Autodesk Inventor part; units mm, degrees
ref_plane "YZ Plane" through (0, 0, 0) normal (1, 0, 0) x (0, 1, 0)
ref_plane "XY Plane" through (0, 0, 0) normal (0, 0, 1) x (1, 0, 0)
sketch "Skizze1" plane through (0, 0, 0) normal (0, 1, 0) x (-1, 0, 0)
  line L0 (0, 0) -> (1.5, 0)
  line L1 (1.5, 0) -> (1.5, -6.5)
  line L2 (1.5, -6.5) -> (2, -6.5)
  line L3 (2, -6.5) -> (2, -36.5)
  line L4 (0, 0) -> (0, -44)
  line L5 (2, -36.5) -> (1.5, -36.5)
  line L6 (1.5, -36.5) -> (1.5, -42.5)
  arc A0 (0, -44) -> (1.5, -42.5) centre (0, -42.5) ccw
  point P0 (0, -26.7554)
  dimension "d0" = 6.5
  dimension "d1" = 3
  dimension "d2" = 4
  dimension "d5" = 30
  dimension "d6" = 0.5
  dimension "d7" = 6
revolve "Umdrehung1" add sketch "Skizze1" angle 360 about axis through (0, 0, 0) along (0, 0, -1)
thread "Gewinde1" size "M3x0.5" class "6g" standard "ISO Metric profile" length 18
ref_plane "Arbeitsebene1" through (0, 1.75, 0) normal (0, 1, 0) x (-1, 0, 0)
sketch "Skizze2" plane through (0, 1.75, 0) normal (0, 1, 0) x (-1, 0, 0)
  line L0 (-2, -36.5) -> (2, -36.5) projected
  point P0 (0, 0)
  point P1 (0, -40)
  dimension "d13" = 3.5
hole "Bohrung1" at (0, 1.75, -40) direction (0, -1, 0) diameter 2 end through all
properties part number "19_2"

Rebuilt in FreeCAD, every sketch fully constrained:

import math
import FreeCAD as App
import Part
import Sketcher

doc = App.newDocument("Part")
body = doc.addObject("PartDesign::Body", "Body")

# Sketch on XZ plane
sketch1 = doc.addObject("Sketcher::SketchObject", "Sketch")
body.addObject(sketch1)
sketch1.AttachmentSupport = (doc.XZ_Plane, [""])
sketch1.MapMode = "FlatFace"
sketch1.addGeometry([
    Part.LineSegment(App.Vector(-1.5, 0, 0), App.Vector(0, 0, 0)),  # 0
    Part.LineSegment(App.Vector(0, 0, 0), App.Vector(0, -44, 0)),  # 1
    Part.ArcOfCircle(Part.Circle(App.Vector(0, -42.5, 0), App.Vector(0, 0, 1), 1.5), math.radians(180), math.radians(270)),  # 2
    Part.LineSegment(App.Vector(-1.5, -42.5, 0), App.Vector(-1.5, -36.5, 0)),  # 3
    Part.LineSegment(App.Vector(-1.5, -36.5, 0), App.Vector(-2, -36.5, 0)),  # 4
    Part.LineSegment(App.Vector(-2, -36.5, 0), App.Vector(-2, -6.5, 0)),  # 5
    Part.LineSegment(App.Vector(-2, -6.5, 0), App.Vector(-1.5, -6.5, 0)),  # 6
    Part.LineSegment(App.Vector(-1.5, -6.5, 0), App.Vector(-1.5, 0, 0)),  # 7
], False)
sketch1.addConstraint([
    Sketcher.Constraint("Coincident", 0, 2, 1, 1),
    Sketcher.Constraint("Coincident", 1, 2, 2, 2),
    Sketcher.Constraint("Tangent", 2, 1, 3, 1),
    Sketcher.Constraint("Coincident", 3, 2, 4, 1),
    Sketcher.Constraint("Coincident", 4, 2, 5, 1),
    Sketcher.Constraint("Coincident", 5, 2, 6, 1),
    Sketcher.Constraint("Coincident", 6, 2, 7, 1),
    Sketcher.Constraint("Coincident", 7, 2, 0, 1),
    Sketcher.Constraint("Horizontal", 0),
    Sketcher.Constraint("Vertical", 1),
    Sketcher.Constraint("Vertical", 3),
    Sketcher.Constraint("Horizontal", 4),
    Sketcher.Constraint("Vertical", 5),
    Sketcher.Constraint("Horizontal", 6),
    Sketcher.Constraint("Vertical", 7),
    Sketcher.Constraint("Coincident", 0, 2, -1, 1),
    Sketcher.Constraint("PointOnObject", 2, 3, -2),
    Sketcher.Constraint("Vertical", 3, 2, 6, 2),
    Sketcher.Constraint("Radius", 2, 1.5),
    Sketcher.Constraint("DistanceY", 3, 1, 3, 2, 6.0),
    Sketcher.Constraint("DistanceY", 5, 1, 5, 2, 30.0),
    Sketcher.Constraint("DistanceX", 4, 2, 4, 1, 0.5),
    Sketcher.Constraint("DistanceY", 7, 1, 7, 2, 6.5),
])
revolution = doc.addObject("PartDesign::Revolution", "Revolution")
body.addObject(revolution)
revolution.Profile = sketch1
revolution.ReferenceAxis = (sketch1, ["V_Axis"])
revolution.Angle = 360

# Sketch on XZ plane
sketch2 = doc.addObject("Sketcher::SketchObject", "Sketch001")
body.addObject(sketch2)
sketch2.AttachmentSupport = (doc.XZ_Plane, [""])
sketch2.MapMode = "FlatFace"
sketch2.AttachmentOffset = App.Placement(App.Vector(0, 0, -1.75), App.Rotation())
sketch2.addGeometry(Part.Circle(App.Vector(0, -40, 0), App.Vector(0, 0, 1), 1), False)
sketch2.addConstraint([
    Sketcher.Constraint("PointOnObject", 0, 3, -2),
    Sketcher.Constraint("Diameter", 0, 2.0),
    Sketcher.Constraint("DistanceY", 0, 3, -1, 1, 40.0),
])
doc.recompute()
hole = doc.addObject("PartDesign::Hole", "Hole")
body.addObject(hole)
hole.Profile = sketch2
hole.ThreadType = "None"
hole.Diameter = 2
hole.DepthType = "ThroughAll"
hole.Reversed = True

doc.recompute()
